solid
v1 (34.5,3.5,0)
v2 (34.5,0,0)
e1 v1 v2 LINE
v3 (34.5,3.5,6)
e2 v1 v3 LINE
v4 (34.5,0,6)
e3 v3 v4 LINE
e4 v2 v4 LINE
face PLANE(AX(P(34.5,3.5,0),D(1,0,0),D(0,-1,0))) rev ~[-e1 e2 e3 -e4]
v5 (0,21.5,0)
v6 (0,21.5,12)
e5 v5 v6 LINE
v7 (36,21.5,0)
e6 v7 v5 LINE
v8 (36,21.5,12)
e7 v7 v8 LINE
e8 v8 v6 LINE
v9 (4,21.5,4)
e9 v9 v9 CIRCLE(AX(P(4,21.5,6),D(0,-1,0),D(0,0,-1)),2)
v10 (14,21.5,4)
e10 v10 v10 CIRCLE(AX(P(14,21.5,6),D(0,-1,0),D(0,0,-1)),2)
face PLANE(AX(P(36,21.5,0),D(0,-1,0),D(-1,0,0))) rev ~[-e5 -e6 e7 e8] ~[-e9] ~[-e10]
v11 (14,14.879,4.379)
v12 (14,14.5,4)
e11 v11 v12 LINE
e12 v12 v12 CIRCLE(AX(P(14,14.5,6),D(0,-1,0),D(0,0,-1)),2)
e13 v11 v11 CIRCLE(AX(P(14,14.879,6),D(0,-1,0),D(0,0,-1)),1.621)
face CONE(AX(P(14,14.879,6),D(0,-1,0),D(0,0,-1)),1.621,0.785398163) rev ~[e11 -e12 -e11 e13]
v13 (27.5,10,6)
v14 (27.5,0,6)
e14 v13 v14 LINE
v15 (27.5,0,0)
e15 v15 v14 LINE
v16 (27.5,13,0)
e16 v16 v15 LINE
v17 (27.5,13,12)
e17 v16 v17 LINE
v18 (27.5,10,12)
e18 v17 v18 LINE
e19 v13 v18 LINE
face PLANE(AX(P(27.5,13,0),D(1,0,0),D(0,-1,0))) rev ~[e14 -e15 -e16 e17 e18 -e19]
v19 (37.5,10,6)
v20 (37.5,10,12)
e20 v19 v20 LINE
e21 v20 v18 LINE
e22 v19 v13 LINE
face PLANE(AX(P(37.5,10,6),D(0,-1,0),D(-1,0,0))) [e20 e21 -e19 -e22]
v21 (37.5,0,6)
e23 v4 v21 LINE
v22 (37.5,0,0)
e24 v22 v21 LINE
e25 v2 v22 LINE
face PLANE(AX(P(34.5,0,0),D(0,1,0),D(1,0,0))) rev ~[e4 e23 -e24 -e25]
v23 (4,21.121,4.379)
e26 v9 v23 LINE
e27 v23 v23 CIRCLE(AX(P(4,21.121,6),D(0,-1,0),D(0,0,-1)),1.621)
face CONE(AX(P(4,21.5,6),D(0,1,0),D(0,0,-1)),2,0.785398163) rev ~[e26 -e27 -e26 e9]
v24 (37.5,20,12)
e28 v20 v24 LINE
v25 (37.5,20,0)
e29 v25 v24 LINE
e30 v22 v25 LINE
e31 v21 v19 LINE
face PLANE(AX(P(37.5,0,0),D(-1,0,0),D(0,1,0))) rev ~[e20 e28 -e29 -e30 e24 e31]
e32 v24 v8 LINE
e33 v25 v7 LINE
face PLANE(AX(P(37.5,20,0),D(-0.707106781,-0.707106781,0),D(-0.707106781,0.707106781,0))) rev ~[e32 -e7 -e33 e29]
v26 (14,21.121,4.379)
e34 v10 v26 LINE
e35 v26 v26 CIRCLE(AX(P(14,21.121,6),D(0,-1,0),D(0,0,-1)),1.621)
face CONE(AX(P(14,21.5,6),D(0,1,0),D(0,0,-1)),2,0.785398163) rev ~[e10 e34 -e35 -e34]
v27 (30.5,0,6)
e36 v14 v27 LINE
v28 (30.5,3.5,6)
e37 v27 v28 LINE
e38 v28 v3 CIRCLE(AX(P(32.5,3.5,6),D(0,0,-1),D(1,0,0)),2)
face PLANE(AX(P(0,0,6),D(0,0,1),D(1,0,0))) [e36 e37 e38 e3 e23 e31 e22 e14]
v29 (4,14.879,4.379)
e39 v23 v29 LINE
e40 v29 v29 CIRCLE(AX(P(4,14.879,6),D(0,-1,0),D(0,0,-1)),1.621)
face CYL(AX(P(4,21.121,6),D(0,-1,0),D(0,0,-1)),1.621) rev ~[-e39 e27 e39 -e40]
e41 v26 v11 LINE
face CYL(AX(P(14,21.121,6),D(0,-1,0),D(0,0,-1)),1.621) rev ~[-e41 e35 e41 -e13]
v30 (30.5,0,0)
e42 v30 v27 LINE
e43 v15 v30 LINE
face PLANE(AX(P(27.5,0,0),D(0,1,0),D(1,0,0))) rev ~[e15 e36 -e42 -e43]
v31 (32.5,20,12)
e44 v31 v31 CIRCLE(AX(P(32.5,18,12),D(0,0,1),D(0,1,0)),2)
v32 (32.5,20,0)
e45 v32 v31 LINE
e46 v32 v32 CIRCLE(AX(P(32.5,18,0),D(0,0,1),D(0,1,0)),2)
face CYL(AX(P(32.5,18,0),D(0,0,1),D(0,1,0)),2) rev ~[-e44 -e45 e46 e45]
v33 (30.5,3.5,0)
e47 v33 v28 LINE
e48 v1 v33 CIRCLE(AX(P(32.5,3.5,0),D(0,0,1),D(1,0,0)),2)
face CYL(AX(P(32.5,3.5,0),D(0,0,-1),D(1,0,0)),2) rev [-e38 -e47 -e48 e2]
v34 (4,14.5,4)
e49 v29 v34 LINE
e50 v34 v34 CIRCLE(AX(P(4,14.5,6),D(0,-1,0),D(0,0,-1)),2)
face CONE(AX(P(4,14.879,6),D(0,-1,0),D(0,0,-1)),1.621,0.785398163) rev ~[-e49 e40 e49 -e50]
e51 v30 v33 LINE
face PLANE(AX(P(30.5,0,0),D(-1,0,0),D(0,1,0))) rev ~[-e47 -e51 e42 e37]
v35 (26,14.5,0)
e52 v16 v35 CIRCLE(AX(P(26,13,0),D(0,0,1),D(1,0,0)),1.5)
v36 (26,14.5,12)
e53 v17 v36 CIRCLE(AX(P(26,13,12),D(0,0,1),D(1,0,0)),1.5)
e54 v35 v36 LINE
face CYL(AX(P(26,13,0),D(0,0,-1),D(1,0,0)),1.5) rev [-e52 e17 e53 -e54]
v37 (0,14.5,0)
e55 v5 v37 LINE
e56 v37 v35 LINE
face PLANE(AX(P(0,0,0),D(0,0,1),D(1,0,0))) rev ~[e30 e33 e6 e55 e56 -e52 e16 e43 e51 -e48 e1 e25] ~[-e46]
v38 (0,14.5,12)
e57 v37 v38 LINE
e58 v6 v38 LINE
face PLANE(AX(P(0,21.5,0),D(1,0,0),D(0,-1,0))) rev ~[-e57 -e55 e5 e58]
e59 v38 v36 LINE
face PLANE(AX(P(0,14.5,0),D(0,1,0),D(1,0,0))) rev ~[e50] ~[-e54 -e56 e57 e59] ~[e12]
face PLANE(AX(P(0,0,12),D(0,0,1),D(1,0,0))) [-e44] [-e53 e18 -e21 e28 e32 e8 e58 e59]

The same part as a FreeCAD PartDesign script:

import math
import FreeCAD as App
import Part
import Sketcher

V = App.Vector
Q = App.Units.Quantity

doc = App.newDocument("Part")
body = doc.addObject("PartDesign::Body", "Body")

# Sketch on XY plane
sketch1 = body.newObject("Sketcher::SketchObject", "Sketch")
sketch1.AttachmentSupport = (doc.getObject("XY_Plane"), [""])
sketch1.MapMode = "FlatFace"
sketch1.addGeometry(Part.LineSegment(V(0, 21.5, 0), V(0, 14.5, 0)), False)
sketch1.addGeometry(Part.LineSegment(V(0, 14.5, 0), V(26, 14.5, 0)), False)
sketch1.addGeometry(Part.ArcOfCircle(Part.Circle(V(26, 13, 0), V(0, 0, 1), 1.5), math.radians(0), math.radians(90)), False)
sketch1.addGeometry(Part.LineSegment(V(27.5, 13, 0), V(27.5, 0, 0)), False)
sketch1.addGeometry(Part.LineSegment(V(27.5, 0, 0), V(30.5, 0, 0)), False)
sketch1.addGeometry(Part.LineSegment(V(30.5, 0, 0), V(30.5, 3.5, 0)), False)
sketch1.addGeometry(Part.ArcOfCircle(Part.Circle(V(32.5, 3.5, 0), V(0, 0, 1), 2), math.radians(0), math.radians(180)), False)
sketch1.addGeometry(Part.LineSegment(V(34.5, 3.5, 0), V(34.5, 0, 0)), False)
sketch1.addGeometry(Part.LineSegment(V(34.5, 0, 0), V(37.5, 0, 0)), False)
sketch1.addGeometry(Part.LineSegment(V(37.5, 0, 0), V(37.5, 20, 0)), False)
sketch1.addGeometry(Part.LineSegment(V(37.5, 20, 0), V(36, 21.5, 0)), False)
sketch1.addGeometry(Part.LineSegment(V(36, 21.5, 0), V(0, 21.5, 0)), False)
sketch1.addConstraint(Sketcher.Constraint("Coincident", 0, 2, 1, 1))
sketch1.addConstraint(Sketcher.Constraint("Tangent", 1, 2, 2, 2))
sketch1.addConstraint(Sketcher.Constraint("Tangent", 2, 1, 3, 1))
sketch1.addConstraint(Sketcher.Constraint("Coincident", 3, 2, 4, 1))
sketch1.addConstraint(Sketcher.Constraint("Coincident", 4, 2, 5, 1))
sketch1.addConstraint(Sketcher.Constraint("Tangent", 5, 2, 6, 2))
sketch1.addConstraint(Sketcher.Constraint("Tangent", 6, 1, 7, 1))
sketch1.addConstraint(Sketcher.Constraint("Coincident", 7, 2, 8, 1))
sketch1.addConstraint(Sketcher.Constraint("Coincident", 8, 2, 9, 1))
sketch1.addConstraint(Sketcher.Constraint("Coincident", 9, 2, 10, 1))
sketch1.addConstraint(Sketcher.Constraint("Coincident", 10, 2, 11, 1))
sketch1.addConstraint(Sketcher.Constraint("Coincident", 11, 2, 0, 1))
sketch1.addConstraint(Sketcher.Constraint("Vertical", 0))
sketch1.addConstraint(Sketcher.Constraint("Horizontal", 1))
sketch1.addConstraint(Sketcher.Constraint("Vertical", 3))
sketch1.addConstraint(Sketcher.Constraint("Horizontal", 4))
sketch1.addConstraint(Sketcher.Constraint("Vertical", 5))
sketch1.addConstraint(Sketcher.Constraint("Vertical", 7))
sketch1.addConstraint(Sketcher.Constraint("Horizontal", 8))
sketch1.addConstraint(Sketcher.Constraint("Vertical", 9))
sketch1.addConstraint(Sketcher.Constraint("Horizontal", 11))
sketch1.addConstraint(Sketcher.Constraint("PointOnObject", 0, 2, -2))
sketch1.addConstraint(Sketcher.Constraint("PointOnObject", 3, 2, -1))
sketch1.addConstraint(Sketcher.Constraint("PointOnObject", 7, 2, -1))
sketch1.addConstraint(Sketcher.Constraint("Equal", 4, 8))
sketch1.addConstraint(Sketcher.Constraint("Radius", 6, Q("2 mm")))
sketch1.addConstraint(Sketcher.Constraint("Radius", 2, Q("1.5 mm")))
sketch1.addConstraint(Sketcher.Constraint("DistanceX", 1, 1, 1, 2, Q("26 mm")))
sketch1.addConstraint(Sketcher.Constraint("DistanceX", 4, 1, 4, 2, Q("3 mm")))
sketch1.addConstraint(Sketcher.Constraint("DistanceX", 11, 2, 11, 1, Q("36 mm")))
sketch1.addConstraint(Sketcher.Constraint("DistanceY", 0, 2, 0, 1, Q("7 mm")))
sketch1.addConstraint(Sketcher.Constraint("DistanceY", 3, 2, 3, 1, Q("13 mm")))
sketch1.addConstraint(Sketcher.Constraint("DistanceY", 9, 1, 9, 2, Q("20 mm")))
sketch1.addConstraint(Sketcher.Constraint("DistanceY", 5, 1, 5, 2, Q("3.5 mm")))
pad1 = body.newObject("PartDesign::Pad", "Pad")
pad1.Profile = sketch1
pad1.Length = 12

# Sketch on XY plane
sketch2 = body.newObject("Sketcher::SketchObject", "Sketch001")
sketch2.AttachmentSupport = (doc.getObject("XY_Plane"), [""])
sketch2.MapMode = "FlatFace"
sketch2.addGeometry(Part.Circle(V(32.5, 18, 0), V(0, 0, 1), 2), False)
sketch2.addConstraint(Sketcher.Constraint("Diameter", 0, Q("4 mm")))
sketch2.addConstraint(Sketcher.Constraint("DistanceY", -1, 1, 0, 3, Q("18 mm")))
sketch2.addConstraint(Sketcher.Constraint("DistanceX", -1, 1, 0, 3, Q("32.5 mm")))
doc.recompute()
hole = body.newObject("PartDesign::Hole", "Hole")
hole.Profile = sketch2
hole.ThreadType = "None"
hole.Diameter = 4
hole.DepthType = "Dimension"
hole.Depth = 12
hole.DrillPoint = "Flat"
hole.Reversed = True

# Sketch on YZ plane
sketch3 = body.newObject("Sketcher::SketchObject", "Sketch002")
sketch3.AttachmentSupport = (doc.getObject("YZ_Plane"), [""])
sketch3.MapMode = "FlatFace"
sketch3.AttachmentOffset = App.Placement(V(0, 0, 4), App.Rotation())
sketch3.addGeometry(Part.LineSegment(V(21.5, 6, 0), V(14.5, 6, 0)), False)
sketch3.addGeometry(Part.LineSegment(V(14.5, 6, 0), V(14.5, 4, 0)), False)
sketch3.addGeometry(Part.LineSegment(V(14.5, 4, 0), V(14.9, 4.4, 0)), False)
sketch3.addGeometry(Part.LineSegment(V(14.9, 4.4, 0), V(21.1, 4.4, 0)), False)
sketch3.addGeometry(Part.LineSegment(V(21.1, 4.4, 0), V(21.5, 4, 0)), False)
sketch3.addGeometry(Part.LineSegment(V(21.5, 4, 0), V(21.5, 6, 0)), False)
sketch3.addGeometry(Part.LineSegment(V(21.5, 6, 0), V(14.5, 6, 0)), True)  # axis
sketch3.addConstraint(Sketcher.Constraint("Coincident", 0, 2, 1, 1))
sketch3.addConstraint(Sketcher.Constraint("Coincident", 1, 2, 2, 1))
sketch3.addConstraint(Sketcher.Constraint("Coincident", 2, 2, 3, 1))
sketch3.addConstraint(Sketcher.Constraint("Coincident", 3, 2, 4, 1))
sketch3.addConstraint(Sketcher.Constraint("Coincident", 4, 2, 5, 1))
sketch3.addConstraint(Sketcher.Constraint("Coincident", 5, 2, 0, 1))
sketch3.addConstraint(Sketcher.Constraint("Horizontal", 0))
sketch3.addConstraint(Sketcher.Constraint("Vertical", 1))
sketch3.addConstraint(Sketcher.Constraint("Horizontal", 3))
sketch3.addConstraint(Sketcher.Constraint("Vertical", 5))
sketch3.addConstraint(Sketcher.Constraint("Horizontal", 6))
sketch3.addConstraint(Sketcher.Constraint("Coincident", 6, 1, 5, 2))
sketch3.addConstraint(Sketcher.Constraint("Perpendicular", 2, 4))
sketch3.addConstraint(Sketcher.Constraint("Horizontal", 1, 2, 4, 2))
sketch3.addConstraint(Sketcher.Constraint("Vertical", 1, 2, 6, 2))
sketch3.addConstraint(Sketcher.Constraint("Equal", 2, 4))
sketch3.addConstraint(Sketcher.Constraint("DistanceX", 0, 2, 0, 1, Q("7 mm")))
sketch3.addConstraint(Sketcher.Constraint("DistanceY", 1, 2, 1, 1, Q("2 mm")))
sketch3.addConstraint(Sketcher.Constraint("DistanceY", -1, 1, 0, 2, Q("6 mm")))
sketch3.addConstraint(Sketcher.Constraint("DistanceX", -1, 1, 0, 2, Q("14.5 mm")))
sketch3.addConstraint(Sketcher.Constraint("DistanceX", 3, 1, 3, 2, Q("6.242 mm")))
groove = body.newObject("PartDesign::Groove", "Groove")
groove.Profile = sketch3
groove.ReferenceAxis = (sketch3, ["Axis0"])
groove.Angle = 360

# Sketch on YZ plane
sketch4 = body.newObject("Sketcher::SketchObject", "Sketch003")
sketch4.AttachmentSupport = (doc.getObject("YZ_Plane"), [""])
sketch4.MapMode = "FlatFace"
sketch4.AttachmentOffset = App.Placement(V(0, 0, 14), App.Rotation())
sketch4.addGeometry(Part.LineSegment(V(21.5, 6, 0), V(14.5, 6, 0)), False)
sketch4.addGeometry(Part.LineSegment(V(14.5, 6, 0), V(14.5, 4, 0)), False)
sketch4.addGeometry(Part.LineSegment(V(14.5, 4, 0), V(14.9, 4.4, 0)), False)
sketch4.addGeometry(Part.LineSegment(V(14.9, 4.4, 0), V(21.1, 4.4, 0)), False)
sketch4.addGeometry(Part.LineSegment(V(21.1, 4.4, 0), V(21.5, 4, 0)), False)
sketch4.addGeometry(Part.LineSegment(V(21.5, 4, 0), V(21.5, 6, 0)), False)
sketch4.addGeometry(Part.LineSegment(V(21.5, 6, 0), V(14.5, 6, 0)), True)  # axis
sketch4.addConstraint(Sketcher.Constraint("Coincident", 0, 2, 1, 1))
sketch4.addConstraint(Sketcher.Constraint("Coincident", 1, 2, 2, 1))
sketch4.addConstraint(Sketcher.Constraint("Coincident", 2, 2, 3, 1))
sketch4.addConstraint(Sketcher.Constraint("Coincident", 3, 2, 4, 1))
sketch4.addConstraint(Sketcher.Constraint("Coincident", 4, 2, 5, 1))
sketch4.addConstraint(Sketcher.Constraint("Coincident", 5, 2, 0, 1))
sketch4.addConstraint(Sketcher.Constraint("Horizontal", 0))
sketch4.addConstraint(Sketcher.Constraint("Vertical", 1))
sketch4.addConstraint(Sketcher.Constraint("Horizontal", 3))
sketch4.addConstraint(Sketcher.Constraint("Vertical", 5))
sketch4.addConstraint(Sketcher.Constraint("Horizontal", 6))
sketch4.addConstraint(Sketcher.Constraint("Coincident", 6, 1, 5, 2))
sketch4.addConstraint(Sketcher.Constraint("Perpendicular", 2, 4))
sketch4.addConstraint(Sketcher.Constraint("Horizontal", 1, 2, 4, 2))
sketch4.addConstraint(Sketcher.Constraint("Vertical", 1, 2, 6, 2))
sketch4.addConstraint(Sketcher.Constraint("Equal", 2, 4))
sketch4.addConstraint(Sketcher.Constraint("DistanceX", 0, 2, 0, 1, Q("7 mm")))
sketch4.addConstraint(Sketcher.Constraint("DistanceY", 1, 2, 1, 1, Q("2 mm")))
sketch4.addConstraint(Sketcher.Constraint("DistanceY", -1, 1, 0, 2, Q("6 mm")))
sketch4.addConstraint(Sketcher.Constraint("DistanceX", -1, 1, 0, 2, Q("14.5 mm")))
sketch4.addConstraint(Sketcher.Constraint("DistanceX", 3, 1, 3, 2, Q("6.242 mm")))
groove2 = body.newObject("PartDesign::Groove", "Groove001")
groove2.Profile = sketch4
groove2.ReferenceAxis = (sketch4, ["Axis0"])
groove2.Angle = 360

# Sketch on XY plane
sketch5 = body.newObject("Sketcher::SketchObject", "Sketch004")
sketch5.AttachmentSupport = (doc.getObject("XY_Plane"), [""])
sketch5.MapMode = "FlatFace"
sketch5.AttachmentOffset = App.Placement(V(0, 0, 6), App.Rotation())
sketch5.addGeometry(Part.LineSegment(V(28, 10, 0), V(28, 0, 0)), False)
sketch5.addGeometry(Part.LineSegment(V(28, 0, 0), V(38, 0, 0)), False)
sketch5.addGeometry(Part.LineSegment(V(38, 0, 0), V(38, 10, 0)), False)
sketch5.addGeometry(Part.LineSegment(V(38, 10, 0), V(28, 10, 0)), False)
sketch5.addConstraint(Sketcher.Constraint("Coincident", 0, 2, 1, 1))
sketch5.addConstraint(Sketcher.Constraint("Coincident", 1, 2, 2, 1))
sketch5.addConstraint(Sketcher.Constraint("Coincident", 2, 2, 3, 1))
sketch5.addConstraint(Sketcher.Constraint("Coincident", 3, 2, 0, 1))
sketch5.addConstraint(Sketcher.Constraint("Vertical", 0))
sketch5.addConstraint(Sketcher.Constraint("Horizontal", 1))
sketch5.addConstraint(Sketcher.Constraint("Vertical", 2))
sketch5.addConstraint(Sketcher.Constraint("Horizontal", 3))
sketch5.addConstraint(Sketcher.Constraint("PointOnObject", 0, 2, -1))
sketch5.addConstraint(Sketcher.Constraint("Equal", 3, 0))
sketch5.addConstraint(Sketcher.Constraint("DistanceX", 1, 1, 1, 2, Q("10 mm")))
sketch5.addConstraint(Sketcher.Constraint("DistanceX", -1, 1, 0, 2, Q("27.5 mm")))
pocket1 = body.newObject("PartDesign::Pocket", "Pocket")
pocket1.Profile = sketch5
pocket1.Length = 6
pocket1.Reversed = True

doc.recompute()
